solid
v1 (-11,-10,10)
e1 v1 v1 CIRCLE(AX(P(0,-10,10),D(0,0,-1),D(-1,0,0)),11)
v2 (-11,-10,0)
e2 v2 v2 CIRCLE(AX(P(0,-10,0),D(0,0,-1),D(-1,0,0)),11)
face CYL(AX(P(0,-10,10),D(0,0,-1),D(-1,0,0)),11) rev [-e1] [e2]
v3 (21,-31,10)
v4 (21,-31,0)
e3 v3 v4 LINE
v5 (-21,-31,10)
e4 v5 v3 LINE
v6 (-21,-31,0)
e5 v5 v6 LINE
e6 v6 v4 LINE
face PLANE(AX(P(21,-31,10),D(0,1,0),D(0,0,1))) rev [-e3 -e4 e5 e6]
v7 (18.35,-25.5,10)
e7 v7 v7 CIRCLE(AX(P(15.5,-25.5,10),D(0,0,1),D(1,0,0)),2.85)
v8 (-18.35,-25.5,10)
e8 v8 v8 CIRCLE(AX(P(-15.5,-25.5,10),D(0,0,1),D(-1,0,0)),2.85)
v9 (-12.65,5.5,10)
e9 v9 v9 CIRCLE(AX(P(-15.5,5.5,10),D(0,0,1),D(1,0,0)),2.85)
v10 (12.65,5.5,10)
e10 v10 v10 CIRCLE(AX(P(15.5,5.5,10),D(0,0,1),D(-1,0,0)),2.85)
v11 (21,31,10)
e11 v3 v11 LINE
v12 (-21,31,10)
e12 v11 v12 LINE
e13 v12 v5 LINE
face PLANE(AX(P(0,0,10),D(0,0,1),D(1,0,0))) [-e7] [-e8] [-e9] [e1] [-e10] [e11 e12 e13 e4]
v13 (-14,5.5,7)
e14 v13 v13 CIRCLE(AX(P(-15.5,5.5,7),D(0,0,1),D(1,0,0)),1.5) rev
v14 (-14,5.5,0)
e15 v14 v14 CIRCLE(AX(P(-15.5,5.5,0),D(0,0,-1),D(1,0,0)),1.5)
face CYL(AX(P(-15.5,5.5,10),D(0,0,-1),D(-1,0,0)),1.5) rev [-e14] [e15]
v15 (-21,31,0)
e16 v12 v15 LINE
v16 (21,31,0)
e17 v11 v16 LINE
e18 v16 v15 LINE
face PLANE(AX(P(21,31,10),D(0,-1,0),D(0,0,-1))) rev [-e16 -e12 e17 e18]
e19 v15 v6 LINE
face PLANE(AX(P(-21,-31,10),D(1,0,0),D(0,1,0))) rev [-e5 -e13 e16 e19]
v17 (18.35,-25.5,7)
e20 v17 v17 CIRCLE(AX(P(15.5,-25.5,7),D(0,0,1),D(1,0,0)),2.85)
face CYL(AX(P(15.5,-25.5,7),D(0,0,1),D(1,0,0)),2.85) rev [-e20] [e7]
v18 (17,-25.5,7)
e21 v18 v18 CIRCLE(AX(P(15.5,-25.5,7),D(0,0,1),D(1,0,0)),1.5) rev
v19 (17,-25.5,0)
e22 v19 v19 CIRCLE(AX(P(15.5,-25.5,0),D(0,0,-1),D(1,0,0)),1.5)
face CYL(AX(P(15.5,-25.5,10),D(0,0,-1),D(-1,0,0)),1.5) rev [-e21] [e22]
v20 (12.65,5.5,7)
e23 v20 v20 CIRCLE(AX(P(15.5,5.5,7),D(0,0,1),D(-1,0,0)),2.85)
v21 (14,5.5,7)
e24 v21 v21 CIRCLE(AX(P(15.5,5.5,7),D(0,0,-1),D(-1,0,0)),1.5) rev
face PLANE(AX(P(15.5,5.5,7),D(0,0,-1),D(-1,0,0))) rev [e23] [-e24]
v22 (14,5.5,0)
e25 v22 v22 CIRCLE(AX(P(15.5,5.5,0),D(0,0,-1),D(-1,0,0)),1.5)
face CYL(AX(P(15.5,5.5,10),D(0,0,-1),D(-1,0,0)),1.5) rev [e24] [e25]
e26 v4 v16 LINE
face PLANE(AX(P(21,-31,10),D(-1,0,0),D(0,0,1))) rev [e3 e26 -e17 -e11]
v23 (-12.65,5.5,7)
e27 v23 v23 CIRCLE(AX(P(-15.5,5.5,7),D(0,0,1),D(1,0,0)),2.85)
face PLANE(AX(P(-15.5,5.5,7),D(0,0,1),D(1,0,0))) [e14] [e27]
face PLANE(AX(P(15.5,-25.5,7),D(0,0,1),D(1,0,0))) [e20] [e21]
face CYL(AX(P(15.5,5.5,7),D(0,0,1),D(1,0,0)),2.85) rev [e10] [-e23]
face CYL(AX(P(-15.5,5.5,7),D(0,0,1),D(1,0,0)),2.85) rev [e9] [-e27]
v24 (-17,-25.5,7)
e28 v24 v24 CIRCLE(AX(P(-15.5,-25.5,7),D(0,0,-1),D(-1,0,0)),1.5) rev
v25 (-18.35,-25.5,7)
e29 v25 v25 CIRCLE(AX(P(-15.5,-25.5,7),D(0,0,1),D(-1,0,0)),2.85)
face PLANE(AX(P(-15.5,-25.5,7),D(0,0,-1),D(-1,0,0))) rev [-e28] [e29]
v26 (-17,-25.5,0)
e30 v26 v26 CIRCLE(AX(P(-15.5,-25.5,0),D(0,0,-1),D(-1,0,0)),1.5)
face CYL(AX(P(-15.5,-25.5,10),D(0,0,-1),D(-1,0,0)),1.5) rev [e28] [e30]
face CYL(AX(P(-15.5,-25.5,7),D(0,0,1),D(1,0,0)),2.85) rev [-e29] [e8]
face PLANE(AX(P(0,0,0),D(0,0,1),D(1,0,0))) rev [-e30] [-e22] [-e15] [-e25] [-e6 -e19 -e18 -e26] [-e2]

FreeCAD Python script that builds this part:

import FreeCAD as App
import Part
import Sketcher

doc = App.newDocument("Part")
body = doc.addObject("PartDesign::Body", "Body")

# Sketch on XY plane
sketch1 = doc.addObject("Sketcher::SketchObject", "Sketch")
body.addObject(sketch1)
sketch1.AttachmentSupport = (doc.XY_Plane, [""])
sketch1.MapMode = "FlatFace"
sketch1.addGeometry([
    Part.LineSegment(App.Vector(-21, 31, 0), App.Vector(-21, -31, 0)),
    Part.LineSegment(App.Vector(-21, -31, 0), App.Vector(21, -31, 0)),
    Part.LineSegment(App.Vector(21, -31, 0), App.Vector(21, 31, 0)),
    Part.LineSegment(App.Vector(21, 31, 0), App.Vector(-21, 31, 0)),
], False)
sketch1.addConstraint([
    Sketcher.Constraint("Coincident", 0, 2, 1, 1),
    Sketcher.Constraint("Coincident", 1, 2, 2, 1),
    Sketcher.Constraint("Coincident", 2, 2, 3, 1),
    Sketcher.Constraint("Coincident", 3, 2, 0, 1),
    Sketcher.Constraint("Vertical", 0),
    Sketcher.Constraint("Horizontal", 1),
    Sketcher.Constraint("Vertical", 2),
    Sketcher.Constraint("Horizontal", 3),
    Sketcher.Constraint("Symmetric", 0, 2, 2, 2, -1, 1),
    Sketcher.Constraint("DistanceX", 1, 1, 1, 2, 42.0),
    Sketcher.Constraint("DistanceY", 0, 2, 0, 1, 62.0),
])
pad1 = doc.addObject("PartDesign::Pad", "Pad")
body.addObject(pad1)
pad1.Profile = sketch1
pad1.Length = 10

# Sketch on XY plane
sketch2 = doc.addObject("Sketcher::SketchObject", "Sketch001")
body.addObject(sketch2)
sketch2.AttachmentSupport = (doc.XY_Plane, [""])
sketch2.MapMode = "FlatFace"
sketch2.addGeometry([
    Part.Circle(App.Vector(-15.5, 5.5, 0), App.Vector(0, 0, 1), 1.5),  # 0
    Part.Circle(App.Vector(-15.5, -25.5, 0), App.Vector(0, 0, 1), 1.5),  # 1
    Part.Circle(App.Vector(15.5, -25.5, 0), App.Vector(0, 0, 1), 1.5),  # 2
    Part.Circle(App.Vector(15.5, 5.5, 0), App.Vector(0, 0, 1), 1.5),  # 3
    Part.Circle(App.Vector(0, -10, 0), App.Vector(0, 0, 1), 11),  # 4
], False)
sketch2.addConstraint([
    Sketcher.Constraint("Equal", 0, 1),
    Sketcher.Constraint("Equal", 1, 2),
    Sketcher.Constraint("Equal", 2, 3),
    Sketcher.Constraint("Symmetric", 1, 3, 2, 3, -2),
    Sketcher.Constraint("Symmetric", 0, 3, 3, 3, -2),
    Sketcher.Constraint("PointOnObject", 4, 3, -2),
    Sketcher.Constraint("Vertical", 0, 3, 1, 3),
    Sketcher.Constraint("Diameter", 0, 3.0),
    Sketcher.Constraint("Diameter", 4, 22.0),
    Sketcher.Constraint("DistanceY", 4, 3, -1, 1, 10.0),
    Sketcher.Constraint("DistanceY", 1, 3, 0, 3, 31.0),
    Sketcher.Constraint("DistanceX", 1, 3, 2, 3, 31.0),
    Sketcher.Constraint("DistanceY", -1, 1, 0, 3, 5.5),
])
pocket1 = doc.addObject("PartDesign::Pocket", "Pocket")
body.addObject(pocket1)
pocket1.Profile = sketch2
pocket1.Type = "ThroughAll"
pocket1.Reversed = True

# Sketch on XY plane
sketch3 = doc.addObject("Sketcher::SketchObject", "Sketch002")
body.addObject(sketch3)
sketch3.AttachmentSupport = (doc.XY_Plane, [""])
sketch3.MapMode = "FlatFace"
sketch3.AttachmentOffset = App.Placement(App.Vector(0, 0, 10), App.Rotation())
sketch3.addGeometry([
    Part.Circle(App.Vector(-15.5, 5.5, 0), App.Vector(0, 0, 1), 2.9),
    Part.Circle(App.Vector(15.5, 5.5, 0), App.Vector(0, 0, 1), 2.9),
    Part.Circle(App.Vector(15.5, -25.5, 0), App.Vector(0, 0, 1), 2.9),
    Part.Circle(App.Vector(-15.5, -25.5, 0), App.Vector(0, 0, 1), 2.9),
], False)
sketch3.addConstraint([
    Sketcher.Constraint("Equal", 0, 1),
    Sketcher.Constraint("Equal", 1, 2),
    Sketcher.Constraint("Equal", 2, 3),
    Sketcher.Constraint("Symmetric", 0, 3, 1, 3, -2),
    Sketcher.Constraint("Symmetric", 2, 3, 3, 3, -2),
    Sketcher.Constraint("Vertical", 1, 3, 2, 3),
    Sketcher.Constraint("Diameter", 0, 5.7),
    Sketcher.Constraint("DistanceX", 0, 3, 1, 3, 31.0),
    Sketcher.Constraint("DistanceY", 2, 3, 1, 3, 31.0),
    Sketcher.Constraint("DistanceY", -1, 1, 0, 3, 5.5),
])
pocket2 = doc.addObject("PartDesign::Pocket", "Pocket001")
body.addObject(pocket2)
pocket2.Profile = sketch3
pocket2.Length = 3

doc.recompute()
